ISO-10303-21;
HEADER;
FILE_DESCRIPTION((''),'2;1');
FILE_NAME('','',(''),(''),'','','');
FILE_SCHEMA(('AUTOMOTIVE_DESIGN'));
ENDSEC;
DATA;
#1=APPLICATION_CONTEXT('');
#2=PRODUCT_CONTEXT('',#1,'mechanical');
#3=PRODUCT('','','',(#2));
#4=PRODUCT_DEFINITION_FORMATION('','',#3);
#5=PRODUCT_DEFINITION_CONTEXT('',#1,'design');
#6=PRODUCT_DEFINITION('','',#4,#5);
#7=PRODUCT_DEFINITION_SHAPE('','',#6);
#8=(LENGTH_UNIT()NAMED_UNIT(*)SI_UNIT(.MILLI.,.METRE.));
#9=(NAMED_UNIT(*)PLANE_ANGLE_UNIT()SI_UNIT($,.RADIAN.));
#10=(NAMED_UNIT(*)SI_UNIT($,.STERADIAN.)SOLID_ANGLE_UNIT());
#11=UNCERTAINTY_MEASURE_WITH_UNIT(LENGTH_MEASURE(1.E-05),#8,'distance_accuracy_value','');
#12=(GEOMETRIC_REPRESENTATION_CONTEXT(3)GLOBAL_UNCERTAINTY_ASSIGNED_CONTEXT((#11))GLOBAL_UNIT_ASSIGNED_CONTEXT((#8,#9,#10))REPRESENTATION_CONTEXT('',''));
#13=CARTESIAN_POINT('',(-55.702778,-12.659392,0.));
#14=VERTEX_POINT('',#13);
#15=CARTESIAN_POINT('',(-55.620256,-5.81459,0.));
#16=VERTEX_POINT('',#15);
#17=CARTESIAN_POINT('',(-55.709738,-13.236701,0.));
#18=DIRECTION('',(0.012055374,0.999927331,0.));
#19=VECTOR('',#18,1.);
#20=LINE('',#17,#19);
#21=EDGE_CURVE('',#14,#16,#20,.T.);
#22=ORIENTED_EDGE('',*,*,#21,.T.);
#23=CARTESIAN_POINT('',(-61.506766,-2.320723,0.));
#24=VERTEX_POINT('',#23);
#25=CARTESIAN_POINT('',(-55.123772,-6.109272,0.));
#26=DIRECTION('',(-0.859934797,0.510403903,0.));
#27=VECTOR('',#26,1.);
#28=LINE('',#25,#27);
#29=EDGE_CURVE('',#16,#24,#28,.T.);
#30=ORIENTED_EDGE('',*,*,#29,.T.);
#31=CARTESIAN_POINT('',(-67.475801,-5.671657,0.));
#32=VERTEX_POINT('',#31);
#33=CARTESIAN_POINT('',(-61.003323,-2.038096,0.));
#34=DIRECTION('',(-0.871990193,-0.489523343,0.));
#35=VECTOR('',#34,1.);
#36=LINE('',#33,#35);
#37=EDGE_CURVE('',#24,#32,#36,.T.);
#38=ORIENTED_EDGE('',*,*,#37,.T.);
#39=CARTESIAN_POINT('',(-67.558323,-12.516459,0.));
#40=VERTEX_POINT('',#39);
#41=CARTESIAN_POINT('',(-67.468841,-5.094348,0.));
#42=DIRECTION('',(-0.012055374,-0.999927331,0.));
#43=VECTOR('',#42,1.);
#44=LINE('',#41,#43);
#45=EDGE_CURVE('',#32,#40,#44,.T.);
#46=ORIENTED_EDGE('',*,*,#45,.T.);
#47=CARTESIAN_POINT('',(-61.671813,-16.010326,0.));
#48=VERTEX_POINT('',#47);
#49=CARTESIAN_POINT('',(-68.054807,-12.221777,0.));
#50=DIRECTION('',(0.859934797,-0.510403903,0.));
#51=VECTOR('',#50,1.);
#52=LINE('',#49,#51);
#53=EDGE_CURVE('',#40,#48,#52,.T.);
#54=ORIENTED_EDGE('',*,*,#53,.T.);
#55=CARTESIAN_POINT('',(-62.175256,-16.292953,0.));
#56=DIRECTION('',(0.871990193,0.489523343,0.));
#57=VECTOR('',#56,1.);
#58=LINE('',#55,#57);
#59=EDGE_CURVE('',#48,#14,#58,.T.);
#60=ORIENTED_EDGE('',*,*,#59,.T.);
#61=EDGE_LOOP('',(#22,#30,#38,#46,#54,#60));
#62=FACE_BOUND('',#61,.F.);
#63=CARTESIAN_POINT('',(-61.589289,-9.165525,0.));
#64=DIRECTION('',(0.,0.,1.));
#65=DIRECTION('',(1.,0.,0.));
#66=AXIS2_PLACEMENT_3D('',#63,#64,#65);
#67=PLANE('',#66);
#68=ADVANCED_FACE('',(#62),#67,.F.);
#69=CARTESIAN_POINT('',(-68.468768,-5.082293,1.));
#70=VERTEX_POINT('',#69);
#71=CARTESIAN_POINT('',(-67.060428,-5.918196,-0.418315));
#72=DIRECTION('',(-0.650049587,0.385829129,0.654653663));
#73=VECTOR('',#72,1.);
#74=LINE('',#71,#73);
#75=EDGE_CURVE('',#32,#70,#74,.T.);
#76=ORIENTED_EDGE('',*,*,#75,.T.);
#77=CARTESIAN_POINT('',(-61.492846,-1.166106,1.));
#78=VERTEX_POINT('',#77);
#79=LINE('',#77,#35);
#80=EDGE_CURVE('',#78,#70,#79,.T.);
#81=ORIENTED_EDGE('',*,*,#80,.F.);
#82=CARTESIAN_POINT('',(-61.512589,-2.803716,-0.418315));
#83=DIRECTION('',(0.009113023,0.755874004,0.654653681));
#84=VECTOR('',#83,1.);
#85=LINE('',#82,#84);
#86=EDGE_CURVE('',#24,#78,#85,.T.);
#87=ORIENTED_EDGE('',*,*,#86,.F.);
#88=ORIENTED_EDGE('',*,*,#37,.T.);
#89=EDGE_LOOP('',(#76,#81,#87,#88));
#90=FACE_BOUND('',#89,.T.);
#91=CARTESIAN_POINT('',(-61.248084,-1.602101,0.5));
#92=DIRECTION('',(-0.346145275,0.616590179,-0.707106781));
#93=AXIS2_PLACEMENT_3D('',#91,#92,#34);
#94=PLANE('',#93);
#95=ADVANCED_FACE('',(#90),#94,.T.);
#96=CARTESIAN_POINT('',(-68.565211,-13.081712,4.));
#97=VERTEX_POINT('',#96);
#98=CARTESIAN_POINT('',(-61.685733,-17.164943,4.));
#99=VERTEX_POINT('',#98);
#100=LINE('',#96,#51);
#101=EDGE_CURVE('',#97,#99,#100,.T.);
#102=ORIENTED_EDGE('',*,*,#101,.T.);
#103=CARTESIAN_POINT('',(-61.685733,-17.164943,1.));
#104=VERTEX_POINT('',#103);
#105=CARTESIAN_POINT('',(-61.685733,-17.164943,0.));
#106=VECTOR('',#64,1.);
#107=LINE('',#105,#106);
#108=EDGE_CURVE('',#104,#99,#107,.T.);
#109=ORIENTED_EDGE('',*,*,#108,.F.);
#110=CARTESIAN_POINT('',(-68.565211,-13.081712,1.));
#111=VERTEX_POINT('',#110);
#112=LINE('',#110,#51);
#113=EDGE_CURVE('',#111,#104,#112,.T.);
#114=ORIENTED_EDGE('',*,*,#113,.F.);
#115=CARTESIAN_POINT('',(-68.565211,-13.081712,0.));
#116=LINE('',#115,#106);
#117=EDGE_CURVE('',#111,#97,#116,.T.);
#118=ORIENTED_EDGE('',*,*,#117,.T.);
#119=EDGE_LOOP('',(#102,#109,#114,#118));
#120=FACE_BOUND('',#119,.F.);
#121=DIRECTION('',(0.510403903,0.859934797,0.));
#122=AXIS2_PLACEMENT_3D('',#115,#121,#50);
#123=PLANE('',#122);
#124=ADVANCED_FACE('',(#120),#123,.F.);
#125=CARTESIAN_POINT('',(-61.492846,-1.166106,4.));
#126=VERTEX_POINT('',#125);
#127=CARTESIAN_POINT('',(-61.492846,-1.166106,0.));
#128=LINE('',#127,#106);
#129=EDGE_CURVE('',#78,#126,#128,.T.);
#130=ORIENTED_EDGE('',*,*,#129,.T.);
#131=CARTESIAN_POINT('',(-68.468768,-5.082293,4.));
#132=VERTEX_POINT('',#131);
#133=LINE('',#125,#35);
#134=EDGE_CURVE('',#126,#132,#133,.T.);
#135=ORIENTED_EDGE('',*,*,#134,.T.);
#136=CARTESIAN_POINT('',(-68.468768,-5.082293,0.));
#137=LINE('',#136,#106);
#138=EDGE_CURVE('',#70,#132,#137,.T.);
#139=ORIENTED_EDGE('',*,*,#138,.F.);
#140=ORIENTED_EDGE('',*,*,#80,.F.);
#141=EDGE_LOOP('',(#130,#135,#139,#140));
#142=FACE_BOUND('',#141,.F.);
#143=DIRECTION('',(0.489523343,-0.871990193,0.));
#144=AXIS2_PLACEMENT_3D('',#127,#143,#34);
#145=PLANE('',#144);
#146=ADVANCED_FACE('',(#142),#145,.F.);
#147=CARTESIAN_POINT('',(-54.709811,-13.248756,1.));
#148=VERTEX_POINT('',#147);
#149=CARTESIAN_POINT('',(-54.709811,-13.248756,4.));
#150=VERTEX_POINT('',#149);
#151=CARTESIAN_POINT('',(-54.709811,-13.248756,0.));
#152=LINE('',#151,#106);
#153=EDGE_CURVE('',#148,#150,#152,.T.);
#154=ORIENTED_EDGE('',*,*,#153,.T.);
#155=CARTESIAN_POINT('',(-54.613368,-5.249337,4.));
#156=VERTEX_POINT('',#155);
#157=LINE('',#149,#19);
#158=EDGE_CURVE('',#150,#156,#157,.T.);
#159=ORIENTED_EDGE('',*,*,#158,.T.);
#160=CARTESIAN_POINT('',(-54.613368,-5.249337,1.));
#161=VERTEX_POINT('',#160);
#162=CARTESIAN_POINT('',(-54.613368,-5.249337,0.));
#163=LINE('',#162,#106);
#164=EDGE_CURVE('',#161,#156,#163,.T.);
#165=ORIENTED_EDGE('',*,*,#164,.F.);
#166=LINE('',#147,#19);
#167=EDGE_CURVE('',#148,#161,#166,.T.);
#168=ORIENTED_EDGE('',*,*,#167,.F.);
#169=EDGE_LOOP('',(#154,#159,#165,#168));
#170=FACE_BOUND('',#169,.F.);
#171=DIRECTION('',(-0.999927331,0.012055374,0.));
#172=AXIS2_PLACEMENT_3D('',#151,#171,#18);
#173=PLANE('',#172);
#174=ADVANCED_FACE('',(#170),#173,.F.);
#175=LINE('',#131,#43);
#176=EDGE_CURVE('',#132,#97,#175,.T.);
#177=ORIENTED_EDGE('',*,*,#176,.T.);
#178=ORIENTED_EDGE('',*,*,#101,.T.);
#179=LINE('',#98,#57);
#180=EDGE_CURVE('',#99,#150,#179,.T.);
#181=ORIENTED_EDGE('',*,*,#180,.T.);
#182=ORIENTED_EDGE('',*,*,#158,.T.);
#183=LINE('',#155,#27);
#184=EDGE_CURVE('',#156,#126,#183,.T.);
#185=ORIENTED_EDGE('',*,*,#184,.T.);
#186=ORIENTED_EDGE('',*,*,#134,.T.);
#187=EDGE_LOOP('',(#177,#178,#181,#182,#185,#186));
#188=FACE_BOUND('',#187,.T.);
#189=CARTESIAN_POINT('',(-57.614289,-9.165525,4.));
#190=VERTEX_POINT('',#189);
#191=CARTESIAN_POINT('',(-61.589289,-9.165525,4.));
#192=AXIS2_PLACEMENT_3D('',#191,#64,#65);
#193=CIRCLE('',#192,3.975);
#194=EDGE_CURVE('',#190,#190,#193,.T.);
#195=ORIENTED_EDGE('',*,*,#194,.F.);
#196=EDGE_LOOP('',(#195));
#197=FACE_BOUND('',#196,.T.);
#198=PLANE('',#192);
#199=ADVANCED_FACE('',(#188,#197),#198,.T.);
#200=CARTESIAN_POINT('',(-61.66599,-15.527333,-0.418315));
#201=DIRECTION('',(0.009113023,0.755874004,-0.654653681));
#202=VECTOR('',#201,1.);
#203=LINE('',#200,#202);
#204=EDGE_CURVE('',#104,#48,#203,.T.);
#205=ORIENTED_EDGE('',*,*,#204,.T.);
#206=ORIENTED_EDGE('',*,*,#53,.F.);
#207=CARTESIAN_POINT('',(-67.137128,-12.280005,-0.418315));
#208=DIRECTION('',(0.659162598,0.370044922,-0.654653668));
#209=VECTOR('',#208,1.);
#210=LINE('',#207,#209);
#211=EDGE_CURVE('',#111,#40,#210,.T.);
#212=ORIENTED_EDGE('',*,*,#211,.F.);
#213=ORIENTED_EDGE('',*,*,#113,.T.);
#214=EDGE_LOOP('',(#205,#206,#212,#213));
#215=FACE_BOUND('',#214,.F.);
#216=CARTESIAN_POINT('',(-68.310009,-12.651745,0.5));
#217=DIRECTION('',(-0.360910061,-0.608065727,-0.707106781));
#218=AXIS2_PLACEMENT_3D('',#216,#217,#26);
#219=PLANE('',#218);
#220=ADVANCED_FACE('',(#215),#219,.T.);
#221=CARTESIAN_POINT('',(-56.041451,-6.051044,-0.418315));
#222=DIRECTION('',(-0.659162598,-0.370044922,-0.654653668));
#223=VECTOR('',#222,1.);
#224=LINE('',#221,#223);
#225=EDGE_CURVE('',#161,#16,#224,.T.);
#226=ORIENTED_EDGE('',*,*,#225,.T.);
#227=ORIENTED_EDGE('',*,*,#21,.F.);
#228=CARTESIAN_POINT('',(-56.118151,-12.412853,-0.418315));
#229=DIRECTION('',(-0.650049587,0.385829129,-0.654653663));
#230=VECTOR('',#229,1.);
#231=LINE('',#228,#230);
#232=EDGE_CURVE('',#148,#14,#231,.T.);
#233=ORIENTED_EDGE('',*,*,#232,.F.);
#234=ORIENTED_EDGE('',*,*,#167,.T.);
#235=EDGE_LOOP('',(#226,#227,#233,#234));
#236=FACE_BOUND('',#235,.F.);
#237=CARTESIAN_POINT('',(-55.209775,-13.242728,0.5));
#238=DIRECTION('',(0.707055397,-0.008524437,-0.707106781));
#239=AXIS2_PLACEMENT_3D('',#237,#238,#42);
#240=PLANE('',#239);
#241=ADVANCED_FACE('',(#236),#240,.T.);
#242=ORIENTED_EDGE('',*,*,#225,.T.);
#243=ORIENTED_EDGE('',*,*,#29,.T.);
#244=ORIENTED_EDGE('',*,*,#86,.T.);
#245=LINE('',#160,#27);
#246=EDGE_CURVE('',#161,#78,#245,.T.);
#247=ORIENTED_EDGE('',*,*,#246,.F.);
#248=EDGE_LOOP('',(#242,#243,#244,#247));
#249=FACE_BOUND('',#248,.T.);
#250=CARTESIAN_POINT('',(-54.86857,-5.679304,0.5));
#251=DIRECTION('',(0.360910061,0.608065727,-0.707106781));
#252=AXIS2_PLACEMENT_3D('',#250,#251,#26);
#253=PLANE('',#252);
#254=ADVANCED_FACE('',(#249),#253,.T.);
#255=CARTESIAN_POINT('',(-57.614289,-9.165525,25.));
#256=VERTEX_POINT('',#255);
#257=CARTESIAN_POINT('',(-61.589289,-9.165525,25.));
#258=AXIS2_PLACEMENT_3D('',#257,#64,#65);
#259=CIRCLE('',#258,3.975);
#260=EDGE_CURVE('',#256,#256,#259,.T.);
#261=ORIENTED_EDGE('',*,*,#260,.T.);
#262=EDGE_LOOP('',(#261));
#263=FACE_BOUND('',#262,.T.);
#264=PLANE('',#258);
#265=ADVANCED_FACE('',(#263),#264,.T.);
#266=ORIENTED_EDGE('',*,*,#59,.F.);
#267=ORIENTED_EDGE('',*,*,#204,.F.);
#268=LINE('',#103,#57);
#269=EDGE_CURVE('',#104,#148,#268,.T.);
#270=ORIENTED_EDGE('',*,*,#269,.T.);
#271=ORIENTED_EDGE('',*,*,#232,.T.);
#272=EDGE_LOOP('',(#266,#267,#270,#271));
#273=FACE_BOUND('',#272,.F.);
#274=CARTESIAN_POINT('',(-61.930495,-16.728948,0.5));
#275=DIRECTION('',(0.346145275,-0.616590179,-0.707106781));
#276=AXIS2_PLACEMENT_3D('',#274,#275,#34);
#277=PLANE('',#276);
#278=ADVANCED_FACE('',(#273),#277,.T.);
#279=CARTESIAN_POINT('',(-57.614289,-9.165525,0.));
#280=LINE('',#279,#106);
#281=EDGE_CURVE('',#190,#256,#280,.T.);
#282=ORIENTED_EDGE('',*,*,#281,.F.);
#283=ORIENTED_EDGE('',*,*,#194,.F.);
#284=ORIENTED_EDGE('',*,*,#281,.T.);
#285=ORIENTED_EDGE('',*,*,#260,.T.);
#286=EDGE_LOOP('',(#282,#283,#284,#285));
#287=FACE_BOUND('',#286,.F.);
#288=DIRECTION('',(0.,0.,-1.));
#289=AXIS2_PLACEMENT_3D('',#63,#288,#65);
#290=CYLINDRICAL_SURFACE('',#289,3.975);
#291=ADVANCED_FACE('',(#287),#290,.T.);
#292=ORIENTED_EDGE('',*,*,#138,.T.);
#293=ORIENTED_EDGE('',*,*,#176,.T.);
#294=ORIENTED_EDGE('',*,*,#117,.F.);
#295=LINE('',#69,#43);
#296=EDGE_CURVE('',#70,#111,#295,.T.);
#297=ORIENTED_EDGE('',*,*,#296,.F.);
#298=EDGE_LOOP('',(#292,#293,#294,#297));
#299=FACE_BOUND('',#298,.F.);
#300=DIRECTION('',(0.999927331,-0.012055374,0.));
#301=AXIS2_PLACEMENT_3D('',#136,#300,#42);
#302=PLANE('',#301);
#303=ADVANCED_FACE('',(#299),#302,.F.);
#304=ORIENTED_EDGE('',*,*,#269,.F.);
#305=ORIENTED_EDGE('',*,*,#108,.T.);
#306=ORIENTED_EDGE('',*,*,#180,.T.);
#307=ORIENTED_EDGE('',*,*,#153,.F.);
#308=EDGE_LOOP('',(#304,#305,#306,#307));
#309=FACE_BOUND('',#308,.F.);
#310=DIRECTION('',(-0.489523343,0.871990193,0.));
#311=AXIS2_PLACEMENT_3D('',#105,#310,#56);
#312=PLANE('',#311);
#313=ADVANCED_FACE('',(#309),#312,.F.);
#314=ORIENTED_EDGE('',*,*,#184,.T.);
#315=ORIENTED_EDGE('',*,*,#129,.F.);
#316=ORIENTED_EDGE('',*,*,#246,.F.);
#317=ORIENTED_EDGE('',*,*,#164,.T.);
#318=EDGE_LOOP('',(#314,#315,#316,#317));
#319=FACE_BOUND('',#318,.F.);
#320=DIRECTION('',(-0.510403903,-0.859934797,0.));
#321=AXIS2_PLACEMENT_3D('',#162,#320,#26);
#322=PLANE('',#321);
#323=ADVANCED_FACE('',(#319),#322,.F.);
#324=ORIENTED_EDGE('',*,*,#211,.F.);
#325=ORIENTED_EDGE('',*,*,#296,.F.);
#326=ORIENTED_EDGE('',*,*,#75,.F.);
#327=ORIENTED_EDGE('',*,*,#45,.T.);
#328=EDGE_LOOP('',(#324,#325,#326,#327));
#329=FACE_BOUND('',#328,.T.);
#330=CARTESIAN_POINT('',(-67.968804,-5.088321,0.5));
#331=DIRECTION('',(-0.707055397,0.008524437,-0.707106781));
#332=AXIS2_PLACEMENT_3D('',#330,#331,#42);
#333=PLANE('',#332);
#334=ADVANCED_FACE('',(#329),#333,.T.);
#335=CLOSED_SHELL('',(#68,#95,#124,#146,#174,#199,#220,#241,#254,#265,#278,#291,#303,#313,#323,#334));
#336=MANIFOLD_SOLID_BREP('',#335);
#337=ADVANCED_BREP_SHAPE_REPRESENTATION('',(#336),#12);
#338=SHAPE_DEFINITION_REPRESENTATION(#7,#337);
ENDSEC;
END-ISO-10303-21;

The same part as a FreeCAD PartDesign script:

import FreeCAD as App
import Part
import Sketcher

V = App.Vector
Q = App.Units.Quantity


def edges_at(feature, points):
    """Names of the edges that pass closest to the given points."""
    edges = feature.Shape.Edges
    near = lambda p: min(range(len(edges)), key=lambda i: edges[i].distToShape(Part.Vertex(*p))[0])
    return sorted({f"Edge{near(p) + 1}" for p in points})


def add_polygon(sketch, points):
    """Adds a closed chain of lines whose ends are joined by coincident constraints."""
    first, n = sketch.GeometryCount, len(points)
    for a, b in zip(points, points[1:] + points[:1]):
        sketch.addGeometry(Part.LineSegment(App.Vector(*a, 0), App.Vector(*b, 0)), False)
    for i in range(n):
        sketch.addConstraint(Sketcher.Constraint("Coincident", first + i, 2, first + (i + 1) % n, 1))

doc = App.newDocument("Part")
body = doc.addObject("PartDesign::Body", "Body")

sketch1 = body.newObject("Sketcher::SketchObject", "Sketch")
sketch1.AttachmentSupport = (doc.getObject("XY_Plane"), [""])
sketch1.MapMode = "FlatFace"
sketch1.addGeometry(Part.Circle(V(-61.589289, -9.165525, 0), V(0, 0, 1), 3.975), False)
sketch1.addConstraint([
    Sketcher.Constraint("Diameter", 0, Q("7.95 mm")),
    Sketcher.Constraint("DistanceX", 0, 3, -1, 1, Q("61.589289 mm")),
    Sketcher.Constraint("DistanceY", 0, 3, -1, 1, Q("9.165525 mm")),
])
pad1 = body.newObject("PartDesign::Pad", "Pad")
pad1.Profile = sketch1
pad1.Length = 25

sketch2 = body.newObject("Sketcher::SketchObject", "Sketch001")
sketch2.AttachmentSupport = (doc.getObject("XY_Plane"), [""])
sketch2.MapMode = "FlatFace"
add_polygon(sketch2, [(-61.685733, -17.164943), (-54.709811, -13.248756), (-54.613368, -5.249337), (-61.492846, -1.166106), (-68.468768, -5.082293), (-68.565211, -13.081712)])
sketch2.addGeometry(Part.Circle(V(-61.589289, -9.165525, 0), V(0, 0, 1), 3.975), False)
sketch2.addConstraint([
    Sketcher.Constraint("Parallel", 0, 3),
    Sketcher.Constraint("Parallel", 1, 4),
    Sketcher.Constraint("Parallel", 2, 5),
    Sketcher.Constraint("Equal", 0, 1),
    Sketcher.Constraint("Equal", 1, 2),
    Sketcher.Constraint("Equal", 2, 3),
    Sketcher.Constraint("Diameter", 6, Q("7.95 mm")),
    Sketcher.Constraint("Distance", 0, Q("8.000001 mm")),
    Sketcher.Constraint("DistanceX", 3, 2, 1, 2, Q("13.8554 mm")),
    Sketcher.Constraint("DistanceX", 6, 3, -1, 1, Q("61.589289 mm")),
    Sketcher.Constraint("DistanceX", 0, 2, -1, 1, Q("54.709811 mm")),
    Sketcher.Constraint("DistanceY", 0, 2, 6, 3, Q("4.083231 mm")),
    Sketcher.Constraint("DistanceX", 6, 3, 1, 2, Q("6.975921 mm")),
    Sketcher.Constraint("DistanceY", 1, 2, 2, 2, Q("4.083231 mm")),
    Sketcher.Constraint("DistanceY", 6, 3, -1, 1, Q("9.165525 mm")),
])
pad2 = body.newObject("PartDesign::Pad", "Pad001")
pad2.Profile = sketch2
pad2.Length = 4
doc.recompute()

chamfer = body.newObject("PartDesign::Chamfer", "Chamfer")
chamfer.Base = (pad2, edges_at(pad2, [
    (-65.125, -15.123, 0),
    (-58.198, -15.207, 0),
    (-54.662, -9.249, 0),
    (-58.053, -3.208, 0),
    (-64.981, -3.124, 0),
    (-68.517, -9.082, 0),
]))
chamfer.Size = 1

doc.recompute()
